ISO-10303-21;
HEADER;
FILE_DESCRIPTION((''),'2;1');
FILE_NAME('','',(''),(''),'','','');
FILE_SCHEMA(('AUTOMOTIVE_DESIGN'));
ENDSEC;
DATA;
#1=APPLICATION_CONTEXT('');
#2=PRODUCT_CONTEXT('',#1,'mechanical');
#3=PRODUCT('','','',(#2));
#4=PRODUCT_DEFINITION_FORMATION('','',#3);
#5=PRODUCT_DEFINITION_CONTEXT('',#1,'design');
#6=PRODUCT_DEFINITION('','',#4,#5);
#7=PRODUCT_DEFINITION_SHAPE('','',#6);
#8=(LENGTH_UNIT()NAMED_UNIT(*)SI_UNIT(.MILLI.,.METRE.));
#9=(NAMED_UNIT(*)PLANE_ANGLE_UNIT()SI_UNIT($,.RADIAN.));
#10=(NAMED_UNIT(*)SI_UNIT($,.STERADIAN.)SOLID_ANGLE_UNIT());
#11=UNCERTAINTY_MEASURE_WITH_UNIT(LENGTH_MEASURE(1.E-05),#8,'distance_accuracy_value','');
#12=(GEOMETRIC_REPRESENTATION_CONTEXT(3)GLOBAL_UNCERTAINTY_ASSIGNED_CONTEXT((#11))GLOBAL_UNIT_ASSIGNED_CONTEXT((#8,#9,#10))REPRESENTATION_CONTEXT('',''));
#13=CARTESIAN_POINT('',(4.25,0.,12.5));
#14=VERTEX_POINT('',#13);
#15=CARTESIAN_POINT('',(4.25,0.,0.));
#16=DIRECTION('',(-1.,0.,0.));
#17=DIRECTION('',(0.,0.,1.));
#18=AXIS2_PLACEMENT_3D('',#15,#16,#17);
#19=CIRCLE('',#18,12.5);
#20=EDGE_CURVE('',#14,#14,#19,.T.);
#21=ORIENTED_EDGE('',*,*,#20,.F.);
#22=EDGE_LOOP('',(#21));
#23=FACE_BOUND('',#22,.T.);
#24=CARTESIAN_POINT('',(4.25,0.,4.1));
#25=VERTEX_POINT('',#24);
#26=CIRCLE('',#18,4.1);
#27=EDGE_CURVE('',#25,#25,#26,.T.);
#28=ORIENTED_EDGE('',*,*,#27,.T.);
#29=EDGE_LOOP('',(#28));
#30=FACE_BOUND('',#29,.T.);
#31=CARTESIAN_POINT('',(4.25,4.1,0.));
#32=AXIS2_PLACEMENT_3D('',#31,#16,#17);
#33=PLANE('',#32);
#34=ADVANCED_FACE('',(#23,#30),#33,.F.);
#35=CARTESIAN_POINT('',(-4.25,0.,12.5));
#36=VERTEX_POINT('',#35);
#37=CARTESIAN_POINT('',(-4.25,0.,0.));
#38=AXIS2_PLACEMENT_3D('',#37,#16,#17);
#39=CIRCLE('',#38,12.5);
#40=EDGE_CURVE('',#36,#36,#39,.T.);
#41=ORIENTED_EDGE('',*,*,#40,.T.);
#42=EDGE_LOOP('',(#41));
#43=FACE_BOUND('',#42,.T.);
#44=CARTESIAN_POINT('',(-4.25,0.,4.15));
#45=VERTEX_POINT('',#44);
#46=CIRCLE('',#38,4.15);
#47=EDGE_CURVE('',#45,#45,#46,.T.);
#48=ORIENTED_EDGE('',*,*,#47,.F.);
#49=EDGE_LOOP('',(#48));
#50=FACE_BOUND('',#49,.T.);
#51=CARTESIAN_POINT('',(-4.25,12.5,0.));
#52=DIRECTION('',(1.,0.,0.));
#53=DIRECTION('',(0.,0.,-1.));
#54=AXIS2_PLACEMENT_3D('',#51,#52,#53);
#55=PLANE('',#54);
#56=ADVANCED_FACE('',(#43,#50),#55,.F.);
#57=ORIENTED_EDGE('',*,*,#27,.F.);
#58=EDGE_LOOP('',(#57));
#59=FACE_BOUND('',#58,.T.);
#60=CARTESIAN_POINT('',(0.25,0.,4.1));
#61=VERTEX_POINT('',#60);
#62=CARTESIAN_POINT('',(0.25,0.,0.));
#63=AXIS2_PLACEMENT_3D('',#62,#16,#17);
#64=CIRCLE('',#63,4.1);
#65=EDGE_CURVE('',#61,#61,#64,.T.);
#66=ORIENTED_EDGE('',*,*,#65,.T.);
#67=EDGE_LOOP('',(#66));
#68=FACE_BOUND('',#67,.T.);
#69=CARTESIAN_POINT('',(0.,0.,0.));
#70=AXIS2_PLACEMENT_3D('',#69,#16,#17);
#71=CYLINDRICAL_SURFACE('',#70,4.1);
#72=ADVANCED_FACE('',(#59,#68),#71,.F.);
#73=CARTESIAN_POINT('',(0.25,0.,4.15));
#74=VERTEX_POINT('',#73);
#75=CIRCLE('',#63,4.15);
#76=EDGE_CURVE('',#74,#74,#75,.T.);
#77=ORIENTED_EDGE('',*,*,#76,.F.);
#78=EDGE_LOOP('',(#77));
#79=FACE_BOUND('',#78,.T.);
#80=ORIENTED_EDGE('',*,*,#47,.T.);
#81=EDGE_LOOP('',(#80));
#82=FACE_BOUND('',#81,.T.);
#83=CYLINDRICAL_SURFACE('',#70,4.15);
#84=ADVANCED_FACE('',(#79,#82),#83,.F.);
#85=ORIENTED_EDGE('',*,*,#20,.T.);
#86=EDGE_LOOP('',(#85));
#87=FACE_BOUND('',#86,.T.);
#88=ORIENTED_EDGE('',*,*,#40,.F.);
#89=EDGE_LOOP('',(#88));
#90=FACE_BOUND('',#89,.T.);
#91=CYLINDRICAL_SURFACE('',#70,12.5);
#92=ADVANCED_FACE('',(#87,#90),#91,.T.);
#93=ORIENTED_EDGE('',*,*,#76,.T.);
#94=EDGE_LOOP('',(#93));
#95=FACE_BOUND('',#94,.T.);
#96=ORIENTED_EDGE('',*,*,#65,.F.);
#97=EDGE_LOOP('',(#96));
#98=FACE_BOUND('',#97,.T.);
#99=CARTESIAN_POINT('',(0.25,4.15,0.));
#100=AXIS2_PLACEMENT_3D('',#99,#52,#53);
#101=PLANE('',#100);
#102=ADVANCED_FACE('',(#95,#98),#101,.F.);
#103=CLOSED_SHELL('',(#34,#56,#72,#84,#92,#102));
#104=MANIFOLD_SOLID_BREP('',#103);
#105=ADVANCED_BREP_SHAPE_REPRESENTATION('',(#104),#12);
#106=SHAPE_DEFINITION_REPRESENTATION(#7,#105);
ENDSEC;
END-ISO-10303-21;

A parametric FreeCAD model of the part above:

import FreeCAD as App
import Part
import Sketcher


def add_polygon(sketch, points):
    """Adds a closed chain of lines whose ends are joined by coincident constraints."""
    first, n = sketch.GeometryCount, len(points)
    for a, b in zip(points, points[1:] + points[:1]):
        sketch.addGeometry(Part.LineSegment(App.Vector(*a, 0), App.Vector(*b, 0)), False)
    for i in range(n):
        sketch.addConstraint(Sketcher.Constraint("Coincident", first + i, 2, first + (i + 1) % n, 1))

doc = App.newDocument("Part")
body = doc.addObject("PartDesign::Body", "Body")

sketch1 = body.newObject("Sketcher::SketchObject", "Sketch")
sketch1.AttachmentSupport = (doc.getObject("XY_Plane"), [""])
sketch1.MapMode = "FlatFace"
add_polygon(sketch1, [(4.25, 12.5), (-4.25, 12.5), (-4.25, 4.15), (0.25, 4.15), (0.25, 4.1), (4.25, 4.1)])
sketch1.addConstraint([
    Sketcher.Constraint("Horizontal", 0),
    Sketcher.Constraint("Vertical", 1),
    Sketcher.Constraint("Horizontal", 2),
    Sketcher.Constraint("Vertical", 3),
    Sketcher.Constraint("Horizontal", 4),
    Sketcher.Constraint("Vertical", 5),
    Sketcher.Constraint("DistanceX", 4, 1, 4, 2, 4.0),
    Sketcher.Constraint("DistanceX", 0, 2, 0, 1, 8.5),
    Sketcher.Constraint("DistanceY", 5, 1, 5, 2, 8.4),
    Sketcher.Constraint("DistanceY", 1, 2, 1, 1, 8.35),
    Sketcher.Constraint("DistanceY", -1, 1, 0, 2, 12.5),
    Sketcher.Constraint("DistanceX", 0, 2, -1, 1, 4.25),
])
revolution = body.newObject("PartDesign::Revolution", "Revolution")
revolution.Profile = sketch1
revolution.ReferenceAxis = (sketch1, ["H_Axis"])
revolution.Angle = 360

doc.recompute()
